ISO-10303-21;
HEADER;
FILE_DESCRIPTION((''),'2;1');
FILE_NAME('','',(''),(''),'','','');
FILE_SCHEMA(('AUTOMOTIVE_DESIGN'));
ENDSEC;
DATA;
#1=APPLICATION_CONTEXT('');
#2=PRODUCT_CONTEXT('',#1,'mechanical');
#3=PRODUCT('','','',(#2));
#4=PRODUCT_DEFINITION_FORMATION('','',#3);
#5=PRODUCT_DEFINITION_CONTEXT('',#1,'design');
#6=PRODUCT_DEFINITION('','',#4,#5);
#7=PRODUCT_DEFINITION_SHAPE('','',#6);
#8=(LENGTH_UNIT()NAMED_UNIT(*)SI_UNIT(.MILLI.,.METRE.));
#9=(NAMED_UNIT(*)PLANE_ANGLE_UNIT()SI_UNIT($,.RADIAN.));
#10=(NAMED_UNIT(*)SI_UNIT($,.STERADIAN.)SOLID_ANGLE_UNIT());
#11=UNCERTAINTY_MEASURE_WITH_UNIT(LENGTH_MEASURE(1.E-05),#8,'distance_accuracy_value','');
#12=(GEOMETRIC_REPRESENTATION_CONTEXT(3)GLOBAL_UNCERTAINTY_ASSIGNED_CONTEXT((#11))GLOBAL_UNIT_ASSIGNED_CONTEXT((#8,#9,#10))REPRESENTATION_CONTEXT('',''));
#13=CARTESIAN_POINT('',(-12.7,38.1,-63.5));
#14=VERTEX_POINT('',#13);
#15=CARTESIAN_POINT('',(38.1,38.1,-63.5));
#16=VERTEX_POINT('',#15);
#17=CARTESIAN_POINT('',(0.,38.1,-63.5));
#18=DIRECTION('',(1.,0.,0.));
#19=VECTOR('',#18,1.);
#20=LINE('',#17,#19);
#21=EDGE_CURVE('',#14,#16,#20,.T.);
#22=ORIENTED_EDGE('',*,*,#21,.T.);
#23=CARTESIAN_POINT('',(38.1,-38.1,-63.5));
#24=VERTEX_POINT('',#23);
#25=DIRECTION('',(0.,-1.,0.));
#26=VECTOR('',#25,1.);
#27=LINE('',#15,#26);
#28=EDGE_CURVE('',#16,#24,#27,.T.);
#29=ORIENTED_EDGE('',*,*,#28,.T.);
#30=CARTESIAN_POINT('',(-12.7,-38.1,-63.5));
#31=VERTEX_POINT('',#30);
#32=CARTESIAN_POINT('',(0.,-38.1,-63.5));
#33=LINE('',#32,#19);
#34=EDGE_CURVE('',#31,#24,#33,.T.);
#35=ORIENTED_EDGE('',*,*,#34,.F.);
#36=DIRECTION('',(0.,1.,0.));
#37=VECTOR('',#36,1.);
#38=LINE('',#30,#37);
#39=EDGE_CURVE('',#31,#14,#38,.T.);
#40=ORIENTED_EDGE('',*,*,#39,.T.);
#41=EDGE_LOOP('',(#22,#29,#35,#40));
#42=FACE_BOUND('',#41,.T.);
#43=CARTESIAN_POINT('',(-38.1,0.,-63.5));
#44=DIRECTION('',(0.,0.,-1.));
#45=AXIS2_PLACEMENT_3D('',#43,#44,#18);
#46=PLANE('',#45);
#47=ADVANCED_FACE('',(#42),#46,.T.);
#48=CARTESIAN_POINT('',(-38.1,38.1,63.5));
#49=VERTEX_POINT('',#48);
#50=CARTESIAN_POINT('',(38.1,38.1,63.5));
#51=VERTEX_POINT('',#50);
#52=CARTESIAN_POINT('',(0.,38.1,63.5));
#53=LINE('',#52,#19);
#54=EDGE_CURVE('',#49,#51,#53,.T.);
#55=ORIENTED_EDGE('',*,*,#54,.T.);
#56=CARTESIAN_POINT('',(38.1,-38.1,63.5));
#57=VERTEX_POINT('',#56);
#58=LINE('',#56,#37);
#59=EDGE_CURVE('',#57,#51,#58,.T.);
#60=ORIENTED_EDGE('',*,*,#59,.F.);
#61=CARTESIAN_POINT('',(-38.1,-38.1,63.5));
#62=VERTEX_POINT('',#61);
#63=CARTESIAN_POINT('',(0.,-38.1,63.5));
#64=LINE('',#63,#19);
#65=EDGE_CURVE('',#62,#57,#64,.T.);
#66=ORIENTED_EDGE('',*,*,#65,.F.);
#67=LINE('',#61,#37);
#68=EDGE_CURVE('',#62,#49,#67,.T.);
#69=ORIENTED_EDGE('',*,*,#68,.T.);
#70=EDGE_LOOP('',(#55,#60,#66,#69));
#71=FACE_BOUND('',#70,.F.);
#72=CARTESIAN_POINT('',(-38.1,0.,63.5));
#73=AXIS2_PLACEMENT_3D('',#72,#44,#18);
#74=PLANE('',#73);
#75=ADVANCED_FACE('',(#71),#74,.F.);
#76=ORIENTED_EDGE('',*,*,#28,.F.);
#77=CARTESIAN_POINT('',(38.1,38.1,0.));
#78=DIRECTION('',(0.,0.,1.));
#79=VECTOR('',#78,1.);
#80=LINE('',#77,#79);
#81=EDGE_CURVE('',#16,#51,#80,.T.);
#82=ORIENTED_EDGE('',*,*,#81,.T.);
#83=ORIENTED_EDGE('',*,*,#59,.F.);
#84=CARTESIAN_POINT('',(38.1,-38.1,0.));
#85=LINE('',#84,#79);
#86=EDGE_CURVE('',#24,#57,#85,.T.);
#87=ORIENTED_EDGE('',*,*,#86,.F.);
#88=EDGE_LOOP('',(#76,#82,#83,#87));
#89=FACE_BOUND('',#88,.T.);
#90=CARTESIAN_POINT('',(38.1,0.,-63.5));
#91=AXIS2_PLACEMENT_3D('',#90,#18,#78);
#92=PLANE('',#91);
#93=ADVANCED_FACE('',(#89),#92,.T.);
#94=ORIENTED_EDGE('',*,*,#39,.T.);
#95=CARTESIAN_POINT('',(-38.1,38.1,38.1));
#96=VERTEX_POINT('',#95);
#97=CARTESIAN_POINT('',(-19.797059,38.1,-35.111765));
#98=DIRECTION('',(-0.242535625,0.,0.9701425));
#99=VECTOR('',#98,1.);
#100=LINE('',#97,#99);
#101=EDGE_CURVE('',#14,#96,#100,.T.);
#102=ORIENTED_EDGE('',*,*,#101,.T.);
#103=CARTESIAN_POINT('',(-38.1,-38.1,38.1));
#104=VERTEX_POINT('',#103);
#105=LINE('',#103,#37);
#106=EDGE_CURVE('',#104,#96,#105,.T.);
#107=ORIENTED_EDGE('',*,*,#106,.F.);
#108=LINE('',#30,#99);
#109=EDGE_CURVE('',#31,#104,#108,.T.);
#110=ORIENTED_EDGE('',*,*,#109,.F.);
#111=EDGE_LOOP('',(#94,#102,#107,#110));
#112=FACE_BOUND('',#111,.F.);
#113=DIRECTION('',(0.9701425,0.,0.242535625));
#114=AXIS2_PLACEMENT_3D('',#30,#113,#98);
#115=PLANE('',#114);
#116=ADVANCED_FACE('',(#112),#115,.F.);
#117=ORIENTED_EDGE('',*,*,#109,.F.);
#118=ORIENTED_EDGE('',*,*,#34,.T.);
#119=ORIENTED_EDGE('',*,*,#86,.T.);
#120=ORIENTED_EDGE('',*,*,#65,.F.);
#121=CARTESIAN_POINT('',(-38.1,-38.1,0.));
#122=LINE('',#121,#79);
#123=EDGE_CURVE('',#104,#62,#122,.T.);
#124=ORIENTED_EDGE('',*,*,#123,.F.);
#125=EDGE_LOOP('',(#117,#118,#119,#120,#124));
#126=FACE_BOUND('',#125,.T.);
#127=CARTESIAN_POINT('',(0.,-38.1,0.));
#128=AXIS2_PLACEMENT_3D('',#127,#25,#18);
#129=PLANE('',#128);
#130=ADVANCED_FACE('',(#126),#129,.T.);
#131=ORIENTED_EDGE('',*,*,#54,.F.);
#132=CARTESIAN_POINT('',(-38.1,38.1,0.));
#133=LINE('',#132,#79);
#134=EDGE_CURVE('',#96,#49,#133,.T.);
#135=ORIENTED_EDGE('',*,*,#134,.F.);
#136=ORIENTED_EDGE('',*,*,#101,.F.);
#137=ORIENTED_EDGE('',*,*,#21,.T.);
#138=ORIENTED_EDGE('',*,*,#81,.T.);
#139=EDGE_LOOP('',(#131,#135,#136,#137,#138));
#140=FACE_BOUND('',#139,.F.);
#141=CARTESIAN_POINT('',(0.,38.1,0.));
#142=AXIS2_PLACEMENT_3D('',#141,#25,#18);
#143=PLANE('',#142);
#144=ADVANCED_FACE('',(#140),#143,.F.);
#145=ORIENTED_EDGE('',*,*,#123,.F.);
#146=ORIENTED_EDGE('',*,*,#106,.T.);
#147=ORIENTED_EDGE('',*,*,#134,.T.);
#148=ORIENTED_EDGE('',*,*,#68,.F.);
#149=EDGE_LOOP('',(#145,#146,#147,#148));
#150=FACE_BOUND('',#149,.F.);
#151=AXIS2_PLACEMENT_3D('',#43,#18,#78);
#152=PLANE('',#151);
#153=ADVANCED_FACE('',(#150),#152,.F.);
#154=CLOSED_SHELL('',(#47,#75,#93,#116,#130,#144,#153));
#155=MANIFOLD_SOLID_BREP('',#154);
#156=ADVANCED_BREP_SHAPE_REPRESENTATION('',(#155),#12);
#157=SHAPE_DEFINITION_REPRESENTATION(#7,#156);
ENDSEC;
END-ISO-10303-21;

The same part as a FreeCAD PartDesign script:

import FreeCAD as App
import Part
import Sketcher
Q = App.Units.Quantity

doc = App.newDocument("Part")
body = doc.addObject("PartDesign::Body", "Body")

# Sketch on XZ plane
sketch1 = body.newObject("Sketcher::SketchObject", "Sketch")
sketch1.AttachmentSupport = (doc.getObject("XZ_Plane"), [""])
sketch1.MapMode = "FlatFace"
sketch1.addGeometry([
    Part.LineSegment(App.Vector(-38, 64, 0), App.Vector(-38, -64, 0)),
    Part.LineSegment(App.Vector(-38, -64, 0), App.Vector(38, -64, 0)),
    Part.LineSegment(App.Vector(38, -64, 0), App.Vector(38, 64, 0)),
    Part.LineSegment(App.Vector(38, 64, 0), App.Vector(-38, 64, 0)),
], False)
sketch1.addConstraint([
    Sketcher.Constraint("Coincident", 0, 2, 1, 1),
    Sketcher.Constraint("Coincident", 1, 2, 2, 1),
    Sketcher.Constraint("Coincident", 2, 2, 3, 1),
    Sketcher.Constraint("Coincident", 3, 2, 0, 1),
    Sketcher.Constraint("Vertical", 0),
    Sketcher.Constraint("Horizontal", 1),
    Sketcher.Constraint("Vertical", 2),
    Sketcher.Constraint("Horizontal", 3),
    Sketcher.Constraint("Symmetric", 0, 2, 2, 2, -1, 1),
    Sketcher.Constraint("DistanceX", 1, 1, 1, 2, Q("3 in")),
    Sketcher.Constraint("DistanceY", 0, 2, 0, 1, Q("5 in")),
])
pad1 = body.newObject("PartDesign::Pad", "Pad")
pad1.Profile = sketch1
pad1.Length = Q("3 in")
pad1.Midplane = True

# Sketch on XZ plane
sketch2 = body.newObject("Sketcher::SketchObject", "Sketch001")
sketch2.AttachmentSupport = (doc.getObject("XZ_Plane"), [""])
sketch2.MapMode = "FlatFace"
sketch2.AttachmentOffset = App.Placement(App.Vector(0, 0, 1.5 * 25.4), App.Rotation())
sketch2.addGeometry([
    Part.LineSegment(App.Vector(-38, 38, 0), App.Vector(-38, -64, 0)),
    Part.LineSegment(App.Vector(-38, -64, 0), App.Vector(-13, -64, 0)),
    Part.LineSegment(App.Vector(-13, -64, 0), App.Vector(-38, 38, 0)),
], False)
sketch2.addConstraint([
    Sketcher.Constraint("Coincident", 0, 2, 1, 1),
    Sketcher.Constraint("Coincident", 1, 2, 2, 1),
    Sketcher.Constraint("Coincident", 2, 2, 0, 1),
    Sketcher.Constraint("Vertical", 0),
    Sketcher.Constraint("Horizontal", 1),
    Sketcher.Constraint("DistanceX", 1, 1, 1, 2, Q("1 in")),
    Sketcher.Constraint("DistanceY", 0, 2, 0, 1, Q("4 in")),
    Sketcher.Constraint("DistanceX", 0, 2, -1, 1, Q("1.5 in")),
    Sketcher.Constraint("DistanceY", 0, 2, -1, 1, Q("2.5 in")),
])
pocket1 = body.newObject("PartDesign::Pocket", "Pocket")
pocket1.Profile = sketch2
pocket1.Type = "ThroughAll"

doc.recompute()
